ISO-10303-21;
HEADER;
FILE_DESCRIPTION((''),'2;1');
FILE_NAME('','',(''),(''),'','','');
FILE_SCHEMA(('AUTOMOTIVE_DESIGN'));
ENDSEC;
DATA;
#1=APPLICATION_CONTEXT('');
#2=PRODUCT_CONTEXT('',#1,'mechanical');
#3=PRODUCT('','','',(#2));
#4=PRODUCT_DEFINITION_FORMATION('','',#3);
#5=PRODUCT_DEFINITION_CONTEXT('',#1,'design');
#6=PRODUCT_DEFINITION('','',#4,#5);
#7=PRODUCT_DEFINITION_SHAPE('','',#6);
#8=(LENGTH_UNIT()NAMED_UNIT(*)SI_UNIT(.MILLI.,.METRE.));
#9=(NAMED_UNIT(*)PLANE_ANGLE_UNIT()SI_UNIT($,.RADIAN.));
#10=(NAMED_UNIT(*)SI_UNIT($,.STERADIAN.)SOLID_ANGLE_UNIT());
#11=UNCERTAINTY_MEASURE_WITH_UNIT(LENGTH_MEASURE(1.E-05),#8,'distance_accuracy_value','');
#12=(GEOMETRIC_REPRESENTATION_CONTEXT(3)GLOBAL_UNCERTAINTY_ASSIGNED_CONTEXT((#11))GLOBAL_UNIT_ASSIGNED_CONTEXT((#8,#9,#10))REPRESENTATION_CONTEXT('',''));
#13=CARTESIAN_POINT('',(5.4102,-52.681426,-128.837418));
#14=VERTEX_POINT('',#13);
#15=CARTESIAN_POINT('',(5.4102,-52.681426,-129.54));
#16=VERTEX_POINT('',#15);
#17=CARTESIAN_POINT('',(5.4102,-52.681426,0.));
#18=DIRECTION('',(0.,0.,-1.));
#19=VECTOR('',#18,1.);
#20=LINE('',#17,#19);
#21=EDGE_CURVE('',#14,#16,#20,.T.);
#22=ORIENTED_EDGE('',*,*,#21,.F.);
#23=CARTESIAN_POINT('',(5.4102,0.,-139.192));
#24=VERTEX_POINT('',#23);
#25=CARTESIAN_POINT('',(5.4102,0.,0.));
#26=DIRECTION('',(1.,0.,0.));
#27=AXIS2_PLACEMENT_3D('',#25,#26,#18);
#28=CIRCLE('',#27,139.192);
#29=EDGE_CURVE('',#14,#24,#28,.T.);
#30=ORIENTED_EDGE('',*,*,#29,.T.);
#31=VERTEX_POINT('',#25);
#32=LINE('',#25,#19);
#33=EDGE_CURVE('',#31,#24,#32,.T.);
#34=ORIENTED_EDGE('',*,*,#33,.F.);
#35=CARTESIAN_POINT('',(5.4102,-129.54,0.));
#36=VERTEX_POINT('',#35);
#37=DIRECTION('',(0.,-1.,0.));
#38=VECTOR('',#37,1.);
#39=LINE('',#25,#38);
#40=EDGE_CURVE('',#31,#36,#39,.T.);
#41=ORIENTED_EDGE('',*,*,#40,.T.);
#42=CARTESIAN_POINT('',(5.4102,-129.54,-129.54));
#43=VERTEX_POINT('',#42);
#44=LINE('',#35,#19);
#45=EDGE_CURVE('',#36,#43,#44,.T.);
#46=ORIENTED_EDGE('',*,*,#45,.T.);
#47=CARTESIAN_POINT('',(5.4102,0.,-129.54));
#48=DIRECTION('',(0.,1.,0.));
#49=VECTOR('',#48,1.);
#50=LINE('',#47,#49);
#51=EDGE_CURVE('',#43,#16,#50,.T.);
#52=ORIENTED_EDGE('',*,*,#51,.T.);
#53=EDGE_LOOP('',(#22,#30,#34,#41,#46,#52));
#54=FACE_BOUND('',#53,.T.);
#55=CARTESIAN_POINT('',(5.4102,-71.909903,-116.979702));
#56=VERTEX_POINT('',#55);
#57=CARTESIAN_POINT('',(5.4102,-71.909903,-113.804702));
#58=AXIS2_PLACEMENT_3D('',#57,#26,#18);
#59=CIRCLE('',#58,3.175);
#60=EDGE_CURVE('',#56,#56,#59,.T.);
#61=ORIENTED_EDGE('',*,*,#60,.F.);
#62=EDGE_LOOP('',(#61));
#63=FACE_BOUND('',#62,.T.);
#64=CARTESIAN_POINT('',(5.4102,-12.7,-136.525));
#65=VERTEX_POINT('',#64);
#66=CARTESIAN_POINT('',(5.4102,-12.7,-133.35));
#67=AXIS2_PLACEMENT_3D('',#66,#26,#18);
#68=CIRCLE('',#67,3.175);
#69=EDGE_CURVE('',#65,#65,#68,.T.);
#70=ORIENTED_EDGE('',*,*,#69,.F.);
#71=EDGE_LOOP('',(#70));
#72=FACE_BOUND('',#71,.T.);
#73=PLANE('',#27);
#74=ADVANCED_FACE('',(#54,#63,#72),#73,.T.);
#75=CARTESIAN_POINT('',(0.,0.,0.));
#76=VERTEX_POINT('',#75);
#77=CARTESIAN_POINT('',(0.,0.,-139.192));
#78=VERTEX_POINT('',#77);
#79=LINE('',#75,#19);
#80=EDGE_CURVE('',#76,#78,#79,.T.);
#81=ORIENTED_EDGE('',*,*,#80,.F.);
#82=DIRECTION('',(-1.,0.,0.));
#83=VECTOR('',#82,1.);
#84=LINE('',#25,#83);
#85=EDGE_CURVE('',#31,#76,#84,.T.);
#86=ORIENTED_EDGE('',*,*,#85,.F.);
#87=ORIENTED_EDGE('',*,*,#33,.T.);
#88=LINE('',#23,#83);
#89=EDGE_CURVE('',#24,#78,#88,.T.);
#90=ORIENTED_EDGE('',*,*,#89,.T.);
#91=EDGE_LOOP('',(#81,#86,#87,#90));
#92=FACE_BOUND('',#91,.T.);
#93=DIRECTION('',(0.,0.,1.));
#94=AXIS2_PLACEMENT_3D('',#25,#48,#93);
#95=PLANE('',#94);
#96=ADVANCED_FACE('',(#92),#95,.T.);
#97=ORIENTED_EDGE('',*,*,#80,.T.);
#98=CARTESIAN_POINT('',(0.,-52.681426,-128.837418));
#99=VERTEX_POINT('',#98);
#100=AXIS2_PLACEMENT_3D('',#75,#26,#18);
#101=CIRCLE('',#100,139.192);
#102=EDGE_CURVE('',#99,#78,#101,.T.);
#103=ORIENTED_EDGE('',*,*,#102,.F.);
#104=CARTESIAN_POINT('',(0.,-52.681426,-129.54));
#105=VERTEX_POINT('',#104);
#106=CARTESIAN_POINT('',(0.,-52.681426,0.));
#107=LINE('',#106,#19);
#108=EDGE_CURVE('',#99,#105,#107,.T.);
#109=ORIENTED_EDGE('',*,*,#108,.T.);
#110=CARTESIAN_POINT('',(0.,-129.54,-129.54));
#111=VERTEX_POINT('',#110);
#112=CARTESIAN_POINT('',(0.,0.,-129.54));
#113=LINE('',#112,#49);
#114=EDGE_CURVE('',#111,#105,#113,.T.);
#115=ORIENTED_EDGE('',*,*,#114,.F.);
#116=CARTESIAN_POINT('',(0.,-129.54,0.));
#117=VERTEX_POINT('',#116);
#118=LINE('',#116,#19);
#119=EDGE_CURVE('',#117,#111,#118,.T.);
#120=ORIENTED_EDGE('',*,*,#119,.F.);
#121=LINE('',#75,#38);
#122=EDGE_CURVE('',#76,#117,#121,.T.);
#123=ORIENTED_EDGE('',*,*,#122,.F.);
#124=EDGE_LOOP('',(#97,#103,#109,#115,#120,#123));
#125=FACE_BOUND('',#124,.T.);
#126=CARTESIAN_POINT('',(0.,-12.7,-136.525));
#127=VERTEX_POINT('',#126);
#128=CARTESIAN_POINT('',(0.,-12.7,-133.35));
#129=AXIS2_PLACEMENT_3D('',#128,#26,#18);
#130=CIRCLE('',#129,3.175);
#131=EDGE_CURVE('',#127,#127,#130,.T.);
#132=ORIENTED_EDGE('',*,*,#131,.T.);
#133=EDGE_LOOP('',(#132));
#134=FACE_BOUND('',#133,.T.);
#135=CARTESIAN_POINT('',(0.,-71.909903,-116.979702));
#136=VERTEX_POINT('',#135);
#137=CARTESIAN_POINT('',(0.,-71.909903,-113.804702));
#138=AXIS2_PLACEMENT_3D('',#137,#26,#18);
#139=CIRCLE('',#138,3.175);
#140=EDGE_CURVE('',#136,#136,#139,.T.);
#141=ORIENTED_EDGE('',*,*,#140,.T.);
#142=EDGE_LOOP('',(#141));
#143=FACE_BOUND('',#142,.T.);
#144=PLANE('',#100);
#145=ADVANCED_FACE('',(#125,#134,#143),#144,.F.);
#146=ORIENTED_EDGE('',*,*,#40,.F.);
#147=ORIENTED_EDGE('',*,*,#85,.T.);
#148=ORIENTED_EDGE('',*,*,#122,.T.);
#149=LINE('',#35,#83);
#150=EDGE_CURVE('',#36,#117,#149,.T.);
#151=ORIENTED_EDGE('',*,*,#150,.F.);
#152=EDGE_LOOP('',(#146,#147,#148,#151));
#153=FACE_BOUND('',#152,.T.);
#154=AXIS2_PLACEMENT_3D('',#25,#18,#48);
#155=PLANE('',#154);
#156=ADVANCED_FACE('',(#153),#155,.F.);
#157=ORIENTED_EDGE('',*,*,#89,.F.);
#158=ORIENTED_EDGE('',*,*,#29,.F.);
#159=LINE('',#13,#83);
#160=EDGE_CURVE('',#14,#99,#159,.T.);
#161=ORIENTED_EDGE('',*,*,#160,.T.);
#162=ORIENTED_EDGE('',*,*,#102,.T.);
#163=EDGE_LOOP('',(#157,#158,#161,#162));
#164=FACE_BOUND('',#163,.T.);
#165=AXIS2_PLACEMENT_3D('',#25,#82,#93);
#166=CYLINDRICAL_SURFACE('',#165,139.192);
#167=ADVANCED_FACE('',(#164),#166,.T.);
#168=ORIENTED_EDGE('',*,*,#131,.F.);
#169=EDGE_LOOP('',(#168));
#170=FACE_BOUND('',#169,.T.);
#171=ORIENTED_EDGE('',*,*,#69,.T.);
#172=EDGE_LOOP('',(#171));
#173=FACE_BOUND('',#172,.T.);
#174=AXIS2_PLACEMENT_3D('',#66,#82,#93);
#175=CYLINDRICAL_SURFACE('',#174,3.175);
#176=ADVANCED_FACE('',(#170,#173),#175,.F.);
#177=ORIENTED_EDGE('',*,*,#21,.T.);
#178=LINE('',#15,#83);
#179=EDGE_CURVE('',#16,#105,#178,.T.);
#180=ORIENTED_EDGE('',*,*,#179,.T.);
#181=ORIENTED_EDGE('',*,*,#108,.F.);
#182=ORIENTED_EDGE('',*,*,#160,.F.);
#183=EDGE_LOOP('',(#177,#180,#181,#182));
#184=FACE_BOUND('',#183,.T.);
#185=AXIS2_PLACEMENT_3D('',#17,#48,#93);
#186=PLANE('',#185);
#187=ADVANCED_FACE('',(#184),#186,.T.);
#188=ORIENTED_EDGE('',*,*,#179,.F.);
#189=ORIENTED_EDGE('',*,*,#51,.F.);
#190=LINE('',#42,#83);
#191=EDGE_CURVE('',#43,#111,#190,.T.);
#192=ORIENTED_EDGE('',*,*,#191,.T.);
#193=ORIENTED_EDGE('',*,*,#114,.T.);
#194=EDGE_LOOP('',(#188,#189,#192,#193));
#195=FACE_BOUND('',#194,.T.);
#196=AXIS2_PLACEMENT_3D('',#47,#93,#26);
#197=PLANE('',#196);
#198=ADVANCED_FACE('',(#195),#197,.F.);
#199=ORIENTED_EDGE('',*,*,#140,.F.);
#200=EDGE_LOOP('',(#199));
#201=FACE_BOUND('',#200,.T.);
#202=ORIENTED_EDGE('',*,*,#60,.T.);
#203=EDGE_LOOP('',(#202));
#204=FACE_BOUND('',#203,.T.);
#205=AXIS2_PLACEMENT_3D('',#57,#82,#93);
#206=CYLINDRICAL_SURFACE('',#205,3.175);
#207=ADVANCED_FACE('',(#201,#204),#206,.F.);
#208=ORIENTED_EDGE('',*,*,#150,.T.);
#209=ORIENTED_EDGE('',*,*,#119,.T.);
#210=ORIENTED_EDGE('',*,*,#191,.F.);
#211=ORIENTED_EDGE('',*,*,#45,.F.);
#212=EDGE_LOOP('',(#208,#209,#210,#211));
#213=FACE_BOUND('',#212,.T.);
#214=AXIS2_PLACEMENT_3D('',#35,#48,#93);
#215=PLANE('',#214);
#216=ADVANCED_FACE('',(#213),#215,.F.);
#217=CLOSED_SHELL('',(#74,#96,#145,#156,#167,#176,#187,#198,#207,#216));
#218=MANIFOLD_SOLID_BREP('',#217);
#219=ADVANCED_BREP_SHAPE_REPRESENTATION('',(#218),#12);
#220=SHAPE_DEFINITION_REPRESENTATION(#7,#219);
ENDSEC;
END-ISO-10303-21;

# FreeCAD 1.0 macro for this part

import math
import FreeCAD as App
import Part
import Sketcher
Q = App.Units.Quantity

doc = App.newDocument("Part")
params = doc.addObject("Spreadsheet::Sheet", "Params")
for row, (alias, value) in enumerate([
    ("sketch1_diameter", "0.25 in"),
    ("sketch1_radius", "5.48 in"),
    ("sketch1_width", "5.1 in"),
    ("pad1_length", "0.213 in"),
], start=1):
    params.set(f"A{row}", alias)
    params.set(f"B{row}", "=" + value)
    params.setAlias(f"B{row}", alias)

body = doc.addObject("PartDesign::Body", "Body")

# Sketch on YZ plane
sketch1 = body.newObject("Sketcher::SketchObject", "Sketch")
sketch1.AttachmentSupport = (doc.getObject("YZ_Plane"), [""])
sketch1.MapMode = "FlatFace"
sketch1.addGeometry(Part.LineSegment(App.Vector(0, -139.192, 0), App.Vector(0, 0, 0)), False)
sketch1.addGeometry(Part.LineSegment(App.Vector(0, 0, 0), App.Vector(-129.54, 0, 0)), False)
sketch1.addGeometry(Part.LineSegment(App.Vector(-129.54, 0, 0), App.Vector(-129.54, -129.54, 0)), False)
sketch1.addGeometry(Part.LineSegment(App.Vector(-129.54, -129.54, 0), App.Vector(-52.681426, -129.54, 0)), False)
sketch1.addGeometry(Part.LineSegment(App.Vector(-52.681426, -129.54, 0), App.Vector(-52.681426, -128.837418, 0)), False)
sketch1.addGeometry(Part.ArcOfCircle(Part.Circle(App.Vector(0, 0, 0), App.Vector(0, 0, 1), 139.192), math.radians(-112.239579), math.radians(-90)), False)
sketch1.addGeometry(Part.Circle(App.Vector(-71.909903, -113.804702, 0), App.Vector(0, 0, 1), 3.175), False)
sketch1.addGeometry(Part.Circle(App.Vector(-12.7, -133.35, 0), App.Vector(0, 0, 1), 3.175), False)
sketch1.addConstraint(Sketcher.Constraint("Coincident", 0, 2, 1, 1))
sketch1.addConstraint(Sketcher.Constraint("Coincident", 1, 2, 2, 1))
sketch1.addConstraint(Sketcher.Constraint("Coincident", 2, 2, 3, 1))
sketch1.addConstraint(Sketcher.Constraint("Coincident", 3, 2, 4, 1))
sketch1.addConstraint(Sketcher.Constraint("Coincident", 4, 2, 5, 1))
sketch1.addConstraint(Sketcher.Constraint("Coincident", 5, 2, 0, 1))
sketch1.addConstraint(Sketcher.Constraint("Vertical", 0))
sketch1.addConstraint(Sketcher.Constraint("Horizontal", 1))
sketch1.addConstraint(Sketcher.Constraint("Vertical", 2))
sketch1.addConstraint(Sketcher.Constraint("Horizontal", 3))
sketch1.addConstraint(Sketcher.Constraint("Vertical", 4))
sketch1.addConstraint(Sketcher.Constraint("Coincident", 5, 3, -1, 1))
sketch1.addConstraint(Sketcher.Constraint("Coincident", 0, 2, -1, 1))
sketch1.addConstraint(Sketcher.Constraint("Equal", 6, 7))
sketch1.addConstraint(Sketcher.Constraint("Equal", 1, 2))
sketch1.addConstraint(Sketcher.Constraint("Diameter", 6, Q("0.25 in")))
sketch1.addConstraint(Sketcher.Constraint("Radius", 5, Q("5.48 in")))
sketch1.addConstraint(Sketcher.Constraint("DistanceX", 1, 2, 1, 1, Q("5.1 in")))
sketch1.addConstraint(Sketcher.Constraint("DistanceX", 7, 3, -1, 1, Q("0.5 in")))
sketch1.addConstraint(Sketcher.Constraint("DistanceY", 7, 3, -1, 1, Q("5.25 in")))
sketch1.addConstraint(Sketcher.Constraint("DistanceY", 6, 3, -1, 1, Q("4.4805001 in")))
sketch1.addConstraint(Sketcher.Constraint("DistanceX", 3, 1, 3, 2, Q("76.858574 mm")))
sketch1.addConstraint(Sketcher.Constraint("DistanceX", 6, 3, -1, 1, Q("71.909903 mm")))
sketch1.setExpression("Constraints[15]", "Params.sketch1_diameter")
sketch1.setExpression("Constraints[16]", "Params.sketch1_radius")
sketch1.setExpression("Constraints[17]", "Params.sketch1_width")
pad1 = body.newObject("PartDesign::Pad", "Pad")
pad1.Profile = sketch1
pad1.setExpression("Length", "Params.pad1_length")

doc.recompute()
